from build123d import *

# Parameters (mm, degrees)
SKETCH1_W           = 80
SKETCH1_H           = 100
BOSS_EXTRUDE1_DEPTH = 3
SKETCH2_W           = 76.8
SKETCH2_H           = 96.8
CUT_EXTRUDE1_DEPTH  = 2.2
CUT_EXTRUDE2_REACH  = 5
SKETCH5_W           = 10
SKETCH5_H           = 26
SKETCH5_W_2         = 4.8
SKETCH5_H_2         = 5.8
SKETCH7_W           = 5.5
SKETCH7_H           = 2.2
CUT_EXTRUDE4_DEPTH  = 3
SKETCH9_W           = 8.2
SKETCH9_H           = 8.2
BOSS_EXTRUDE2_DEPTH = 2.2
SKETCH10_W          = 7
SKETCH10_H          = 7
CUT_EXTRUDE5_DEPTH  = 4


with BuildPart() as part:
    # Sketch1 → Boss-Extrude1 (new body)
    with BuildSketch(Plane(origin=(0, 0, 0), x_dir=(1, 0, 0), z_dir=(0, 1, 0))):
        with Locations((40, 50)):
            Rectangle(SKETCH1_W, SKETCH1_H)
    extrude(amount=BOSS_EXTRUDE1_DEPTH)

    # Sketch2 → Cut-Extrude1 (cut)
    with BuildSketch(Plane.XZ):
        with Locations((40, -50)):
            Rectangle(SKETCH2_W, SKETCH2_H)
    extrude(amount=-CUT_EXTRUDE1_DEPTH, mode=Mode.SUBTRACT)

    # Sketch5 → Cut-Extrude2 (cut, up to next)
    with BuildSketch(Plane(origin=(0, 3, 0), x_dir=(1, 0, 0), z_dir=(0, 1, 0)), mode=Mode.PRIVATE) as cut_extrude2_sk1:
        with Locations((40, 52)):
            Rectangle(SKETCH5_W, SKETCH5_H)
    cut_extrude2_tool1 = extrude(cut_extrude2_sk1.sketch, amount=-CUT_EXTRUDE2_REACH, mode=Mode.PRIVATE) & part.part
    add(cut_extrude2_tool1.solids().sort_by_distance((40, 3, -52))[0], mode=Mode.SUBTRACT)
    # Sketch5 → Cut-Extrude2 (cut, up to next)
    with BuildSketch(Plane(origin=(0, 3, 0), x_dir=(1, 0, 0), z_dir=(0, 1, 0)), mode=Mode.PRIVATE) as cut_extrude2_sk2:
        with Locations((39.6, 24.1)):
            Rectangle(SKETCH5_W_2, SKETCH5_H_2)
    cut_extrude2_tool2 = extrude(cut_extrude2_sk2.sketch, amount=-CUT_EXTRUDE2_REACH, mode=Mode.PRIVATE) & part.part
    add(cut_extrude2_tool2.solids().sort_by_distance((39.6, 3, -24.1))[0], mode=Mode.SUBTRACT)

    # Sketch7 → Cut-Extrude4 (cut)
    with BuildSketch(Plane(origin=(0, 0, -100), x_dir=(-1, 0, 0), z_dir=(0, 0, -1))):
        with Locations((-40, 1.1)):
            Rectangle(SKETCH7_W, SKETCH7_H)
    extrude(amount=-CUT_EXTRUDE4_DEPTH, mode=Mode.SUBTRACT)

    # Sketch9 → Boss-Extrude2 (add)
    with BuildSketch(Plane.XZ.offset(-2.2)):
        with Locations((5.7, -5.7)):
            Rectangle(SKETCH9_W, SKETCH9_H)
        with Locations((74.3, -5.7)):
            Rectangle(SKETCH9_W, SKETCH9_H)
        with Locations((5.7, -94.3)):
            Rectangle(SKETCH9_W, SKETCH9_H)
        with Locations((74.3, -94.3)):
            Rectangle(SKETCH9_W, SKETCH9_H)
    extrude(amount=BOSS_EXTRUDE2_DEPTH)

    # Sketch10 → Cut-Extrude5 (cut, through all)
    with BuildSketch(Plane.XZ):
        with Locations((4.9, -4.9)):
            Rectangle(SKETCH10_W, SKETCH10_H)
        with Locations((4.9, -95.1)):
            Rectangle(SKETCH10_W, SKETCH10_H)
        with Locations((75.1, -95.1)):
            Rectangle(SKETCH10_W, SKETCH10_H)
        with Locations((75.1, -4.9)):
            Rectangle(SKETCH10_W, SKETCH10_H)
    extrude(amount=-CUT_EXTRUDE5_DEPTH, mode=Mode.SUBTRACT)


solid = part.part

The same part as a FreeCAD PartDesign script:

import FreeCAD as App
import Part
import Sketcher

doc = App.newDocument("Part")
params = doc.addObject("Spreadsheet::Sheet", "Params")
for row, (alias, value) in enumerate([
    ("sketch1_width", "80 mm"),
    ("sketch1_height", "100 mm"),
    ("pad1_length", "3 mm"),
    ("sketch2_width", "76.8 mm"),
    ("sketch2_height", "96.8 mm"),
    ("pocket1_length", "2.2 mm"),
    ("sketch3_width", "10 mm"),
    ("sketch3_height", "26 mm"),
    ("sketch4_width", "4.8 mm"),
    ("sketch4_height", "5.8 mm"),
    ("sketch5_width", "5.5 mm"),
    ("sketch5_height", "2.2 mm"),
    ("pocket4_length", "3 mm"),
    ("sketch6_width", "8.2 mm"),
    ("pad2_length", "2.2 mm"),
    ("sketch7_width", "7 mm"),
], start=1):
    params.set(f"A{row}", alias)
    params.set(f"B{row}", "=" + value)
    params.setAlias(f"B{row}", alias)

body = doc.addObject("PartDesign::Body", "Body")

# Sketch on XZ plane
sketch1 = body.newObject("Sketcher::SketchObject", "Sketch")
sketch1.AttachmentSupport = (doc.getObject("XZ_Plane"), [""])
sketch1.MapMode = "FlatFace"
sketch1.addGeometry(Part.LineSegment(App.Vector(0, -100, 0), App.Vector(0, 0, 0)), False)
sketch1.addGeometry(Part.LineSegment(App.Vector(0, 0, 0), App.Vector(80, 0, 0)), False)
sketch1.addGeometry(Part.LineSegment(App.Vector(80, 0, 0), App.Vector(80, -100, 0)), False)
sketch1.addGeometry(Part.LineSegment(App.Vector(80, -100, 0), App.Vector(0, -100, 0)), False)
sketch1.addConstraint(Sketcher.Constraint("Coincident", 0, 2, 1, 1))
sketch1.addConstraint(Sketcher.Constraint("Coincident", 1, 2, 2, 1))
sketch1.addConstraint(Sketcher.Constraint("Coincident", 2, 2, 3, 1))
sketch1.addConstraint(Sketcher.Constraint("Coincident", 3, 2, 0, 1))
sketch1.addConstraint(Sketcher.Constraint("Vertical", 0))
sketch1.addConstraint(Sketcher.Constraint("Horizontal", 1))
sketch1.addConstraint(Sketcher.Constraint("Vertical", 2))
sketch1.addConstraint(Sketcher.Constraint("Horizontal", 3))
sketch1.addConstraint(Sketcher.Constraint("Coincident", 0, 2, -1, 1))
sketch1.addConstraint(Sketcher.Constraint("DistanceX", 1, 1, 1, 2, 80.0))
sketch1.addConstraint(Sketcher.Constraint("DistanceY", 0, 1, 0, 2, 100.0))
sketch1.setExpression("Constraints[9]", "Params.sketch1_width")
sketch1.setExpression("Constraints[10]", "Params.sketch1_height")
pad1 = body.newObject("PartDesign::Pad", "Pad")
pad1.Profile = sketch1
pad1.setExpression("Length", "Params.pad1_length")
pad1.Reversed = True

# Sketch on XZ plane
sketch2 = body.newObject("Sketcher::SketchObject", "Sketch001")
sketch2.AttachmentSupport = (doc.getObject("XZ_Plane"), [""])
sketch2.MapMode = "FlatFace"
sketch2.addGeometry(Part.LineSegment(App.Vector(1.6, -1.6, 0), App.Vector(1.6, -98.4, 0)), False)
sketch2.addGeometry(Part.LineSegment(App.Vector(1.6, -98.4, 0), App.Vector(78.4, -98.4, 0)), False)
sketch2.addGeometry(Part.LineSegment(App.Vector(78.4, -98.4, 0), App.Vector(78.4, -1.6, 0)), False)
sketch2.addGeometry(Part.LineSegment(App.Vector(78.4, -1.6, 0), App.Vector(1.6, -1.6, 0)), False)
sketch2.addConstraint(Sketcher.Constraint("Coincident", 0, 2, 1, 1))
sketch2.addConstraint(Sketcher.Constraint("Coincident", 1, 2, 2, 1))
sketch2.addConstraint(Sketcher.Constraint("Coincident", 2, 2, 3, 1))
sketch2.addConstraint(Sketcher.Constraint("Coincident", 3, 2, 0, 1))
sketch2.addConstraint(Sketcher.Constraint("Vertical", 0))
sketch2.addConstraint(Sketcher.Constraint("Horizontal", 1))
sketch2.addConstraint(Sketcher.Constraint("Vertical", 2))
sketch2.addConstraint(Sketcher.Constraint("Horizontal", 3))
sketch2.addConstraint(Sketcher.Constraint("DistanceX", 1, 1, 1, 2, 76.8))
sketch2.addConstraint(Sketcher.Constraint("DistanceY", 0, 2, 0, 1, 96.8))
sketch2.addConstraint(Sketcher.Constraint("DistanceX", -1, 1, 0, 2, 1.6))
sketch2.addConstraint(Sketcher.Constraint("DistanceY", 0, 2, -1, 1, 98.4))
sketch2.setExpression("Constraints[8]", "Params.sketch2_width")
sketch2.setExpression("Constraints[9]", "Params.sketch2_height")
pocket1 = body.newObject("PartDesign::Pocket", "Pocket")
pocket1.Profile = sketch2
pocket1.setExpression("Length", "Params.pocket1_length")

# Sketch on XZ plane
sketch3 = body.newObject("Sketcher::SketchObject", "Sketch002")
sketch3.AttachmentSupport = (doc.getObject("XZ_Plane"), [""])
sketch3.MapMode = "FlatFace"
sketch3.AttachmentOffset = App.Placement(App.Vector(0, 0, -3), App.Rotation())
sketch3.addGeometry(Part.LineSegment(App.Vector(35, -65, 0), App.Vector(35, -39, 0)), False)
sketch3.addGeometry(Part.LineSegment(App.Vector(35, -39, 0), App.Vector(45, -39, 0)), False)
sketch3.addGeometry(Part.LineSegment(App.Vector(45, -39, 0), App.Vector(45, -65, 0)), False)
sketch3.addGeometry(Part.LineSegment(App.Vector(45, -65, 0), App.Vector(35, -65, 0)), False)
sketch3.addConstraint(Sketcher.Constraint("Coincident", 0, 2, 1, 1))
sketch3.addConstraint(Sketcher.Constraint("Coincident", 1, 2, 2, 1))
sketch3.addConstraint(Sketcher.Constraint("Coincident", 2, 2, 3, 1))
sketch3.addConstraint(Sketcher.Constraint("Coincident", 3, 2, 0, 1))
sketch3.addConstraint(Sketcher.Constraint("Vertical", 0))
sketch3.addConstraint(Sketcher.Constraint("Horizontal", 1))
sketch3.addConstraint(Sketcher.Constraint("Vertical", 2))
sketch3.addConstraint(Sketcher.Constraint("Horizontal", 3))
sketch3.addConstraint(Sketcher.Constraint("DistanceX", 1, 1, 1, 2, 10.0))
sketch3.addConstraint(Sketcher.Constraint("DistanceY", 0, 1, 0, 2, 26.0))
sketch3.addConstraint(Sketcher.Constraint("DistanceX", -1, 1, 0, 2, 35.0))
sketch3.addConstraint(Sketcher.Constraint("DistanceY", 0, 2, -1, 1, 39.0))
sketch3.setExpression("Constraints[8]", "Params.sketch3_width")
sketch3.setExpression("Constraints[9]", "Params.sketch3_height")
pocket2 = body.newObject("PartDesign::Pocket", "Pocket001")
pocket2.Profile = sketch3
pocket2.Type = "UpToFirst"
pocket2.Reversed = True

# Sketch on XZ plane
sketch4 = body.newObject("Sketcher::SketchObject", "Sketch003")
sketch4.AttachmentSupport = (doc.getObject("XZ_Plane"), [""])
sketch4.MapMode = "FlatFace"
sketch4.AttachmentOffset = App.Placement(App.Vector(0, 0, -3), App.Rotation())
sketch4.addGeometry(Part.LineSegment(App.Vector(37.2, -27, 0), App.Vector(37.2, -21.2, 0)), False)
sketch4.addGeometry(Part.LineSegment(App.Vector(37.2, -21.2, 0), App.Vector(42, -21.2, 0)), False)
sketch4.addGeometry(Part.LineSegment(App.Vector(42, -21.2, 0), App.Vector(42, -27, 0)), False)
sketch4.addGeometry(Part.LineSegment(App.Vector(42, -27, 0), App.Vector(37.2, -27, 0)), False)
sketch4.addConstraint(Sketcher.Constraint("Coincident", 0, 2, 1, 1))
sketch4.addConstraint(Sketcher.Constraint("Coincident", 1, 2, 2, 1))
sketch4.addConstraint(Sketcher.Constraint("Coincident", 2, 2, 3, 1))
sketch4.addConstraint(Sketcher.Constraint("Coincident", 3, 2, 0, 1))
sketch4.addConstraint(Sketcher.Constraint("Vertical", 0))
sketch4.addConstraint(Sketcher.Constraint("Horizontal", 1))
sketch4.addConstraint(Sketcher.Constraint("Vertical", 2))
sketch4.addConstraint(Sketcher.Constraint("Horizontal", 3))
sketch4.addConstraint(Sketcher.Constraint("DistanceX", 1, 1, 1, 2, 4.8))
sketch4.addConstraint(Sketcher.Constraint("DistanceY", 0, 1, 0, 2, 5.8))
sketch4.addConstraint(Sketcher.Constraint("DistanceX", -1, 1, 1, 2, 42.0))
sketch4.addConstraint(Sketcher.Constraint("DistanceY", 2, 2, -1, 1, 27.0))
sketch4.setExpression("Constraints[8]", "Params.sketch4_width")
sketch4.setExpression("Constraints[9]", "Params.sketch4_height")
pocket3 = body.newObject("PartDesign::Pocket", "Pocket002")
pocket3.Profile = sketch4
pocket3.Type = "UpToFirst"
pocket3.Reversed = True

# Sketch on XY plane
sketch5 = body.newObject("Sketcher::SketchObject", "Sketch004")
sketch5.AttachmentSupport = (doc.getObject("XY_Plane"), [""])
sketch5.MapMode = "FlatFace"
sketch5.AttachmentOffset = App.Placement(App.Vector(0, 0, -100), App.Rotation())
sketch5.addGeometry(Part.LineSegment(App.Vector(42.75, 2.2, 0), App.Vector(42.75, 0, 0)), False)
sketch5.addGeometry(Part.LineSegment(App.Vector(42.75, 0, 0), App.Vector(37.25, 0, 0)), False)
sketch5.addGeometry(Part.LineSegment(App.Vector(37.25, 0, 0), App.Vector(37.25, 2.2, 0)), False)
sketch5.addGeometry(Part.LineSegment(App.Vector(37.25, 2.2, 0), App.Vector(42.75, 2.2, 0)), False)
sketch5.addConstraint(Sketcher.Constraint("Coincident", 0, 2, 1, 1))
sketch5.addConstraint(Sketcher.Constraint("Coincident", 1, 2, 2, 1))
sketch5.addConstraint(Sketcher.Constraint("Coincident", 2, 2, 3, 1))
sketch5.addConstraint(Sketcher.Constraint("Coincident", 3, 2, 0, 1))
sketch5.addConstraint(Sketcher.Constraint("Vertical", 0))
sketch5.addConstraint(Sketcher.Constraint("Horizontal", 1))
sketch5.addConstraint(Sketcher.Constraint("Vertical", 2))
sketch5.addConstraint(Sketcher.Constraint("Horizontal", 3))
sketch5.addConstraint(Sketcher.Constraint("PointOnObject", 0, 2, -1))
sketch5.addConstraint(Sketcher.Constraint("DistanceX", 1, 2, 1, 1, 5.5))
sketch5.addConstraint(Sketcher.Constraint("DistanceY", 0, 2, 0, 1, 2.2))
sketch5.addConstraint(Sketcher.Constraint("DistanceX", -1, 1, 0, 2, 42.75))
sketch5.setExpression("Constraints[9]", "Params.sketch5_width")
sketch5.setExpression("Constraints[10]", "Params.sketch5_height")
pocket4 = body.newObject("PartDesign::Pocket", "Pocket003")
pocket4.Profile = sketch5
pocket4.setExpression("Length", "Params.pocket4_length")
pocket4.Reversed = True

# Sketch on XZ plane
sketch6 = body.newObject("Sketcher::SketchObject", "Sketch005")
sketch6.AttachmentSupport = (doc.getObject("XZ_Plane"), [""])
sketch6.MapMode = "FlatFace"
sketch6.AttachmentOffset = App.Placement(App.Vector(0, 0, -2.2), App.Rotation())
sketch6.addGeometry(Part.LineSegment(App.Vector(1.6, -1.6, 0), App.Vector(1.6, -9.8, 0)), False)
sketch6.addGeometry(Part.LineSegment(App.Vector(1.6, -9.8, 0), App.Vector(9.8, -9.8, 0)), False)
sketch6.addGeometry(Part.LineSegment(App.Vector(9.8, -9.8, 0), App.Vector(9.8, -1.6, 0)), False)
sketch6.addGeometry(Part.LineSegment(App.Vector(9.8, -1.6, 0), App.Vector(1.6, -1.6, 0)), False)
sketch6.addGeometry(Part.LineSegment(App.Vector(70.2, -1.6, 0), App.Vector(70.2, -9.8, 0)), False)
sketch6.addGeometry(Part.LineSegment(App.Vector(70.2, -9.8, 0), App.Vector(78.4, -9.8, 0)), False)
sketch6.addGeometry(Part.LineSegment(App.Vector(78.4, -9.8, 0), App.Vector(78.4, -1.6, 0)), False)
sketch6.addGeometry(Part.LineSegment(App.Vector(78.4, -1.6, 0), App.Vector(70.2, -1.6, 0)), False)
sketch6.addGeometry(Part.LineSegment(App.Vector(1.6, -90.2, 0), App.Vector(1.6, -98.4, 0)), False)
sketch6.addGeometry(Part.LineSegment(App.Vector(1.6, -98.4, 0), App.Vector(9.8, -98.4, 0)), False)
sketch6.addGeometry(Part.LineSegment(App.Vector(9.8, -98.4, 0), App.Vector(9.8, -90.2, 0)), False)
sketch6.addGeometry(Part.LineSegment(App.Vector(9.8, -90.2, 0), App.Vector(1.6, -90.2, 0)), False)
sketch6.addGeometry(Part.LineSegment(App.Vector(70.2, -90.2, 0), App.Vector(70.2, -98.4, 0)), False)
sketch6.addGeometry(Part.LineSegment(App.Vector(70.2, -98.4, 0), App.Vector(78.4, -98.4, 0)), False)
sketch6.addGeometry(Part.LineSegment(App.Vector(78.4, -98.4, 0), App.Vector(78.4, -90.2, 0)), False)
sketch6.addGeometry(Part.LineSegment(App.Vector(78.4, -90.2, 0), App.Vector(70.2, -90.2, 0)), False)
sketch6.addConstraint(Sketcher.Constraint("Coincident", 0, 2, 1, 1))
sketch6.addConstraint(Sketcher.Constraint("Coincident", 1, 2, 2, 1))
sketch6.addConstraint(Sketcher.Constraint("Coincident", 2, 2, 3, 1))
sketch6.addConstraint(Sketcher.Constraint("Coincident", 3, 2, 0, 1))
sketch6.addConstraint(Sketcher.Constraint("Coincident", 4, 2, 5, 1))
sketch6.addConstraint(Sketcher.Constraint("Coincident", 5, 2, 6, 1))
sketch6.addConstraint(Sketcher.Constraint("Coincident", 6, 2, 7, 1))
sketch6.addConstraint(Sketcher.Constraint("Coincident", 7, 2, 4, 1))
sketch6.addConstraint(Sketcher.Constraint("Coincident", 8, 2, 9, 1))
sketch6.addConstraint(Sketcher.Constraint("Coincident", 9, 2, 10, 1))
sketch6.addConstraint(Sketcher.Constraint("Coincident", 10, 2, 11, 1))
sketch6.addConstraint(Sketcher.Constraint("Coincident", 11, 2, 8, 1))
sketch6.addConstraint(Sketcher.Constraint("Coincident", 12, 2, 13, 1))
sketch6.addConstraint(Sketcher.Constraint("Coincident", 13, 2, 14, 1))
sketch6.addConstraint(Sketcher.Constraint("Coincident", 14, 2, 15, 1))
sketch6.addConstraint(Sketcher.Constraint("Coincident", 15, 2, 12, 1))
sketch6.addConstraint(Sketcher.Constraint("Vertical", 0))
sketch6.addConstraint(Sketcher.Constraint("Horizontal", 1))
sketch6.addConstraint(Sketcher.Constraint("Vertical", 2))
sketch6.addConstraint(Sketcher.Constraint("Horizontal", 3))
sketch6.addConstraint(Sketcher.Constraint("Vertical", 4))
sketch6.addConstraint(Sketcher.Constraint("Horizontal", 5))
sketch6.addConstraint(Sketcher.Constraint("Vertical", 6))
sketch6.addConstraint(Sketcher.Constraint("Horizontal", 7))
sketch6.addConstraint(Sketcher.Constraint("Vertical", 8))
sketch6.addConstraint(Sketcher.Constraint("Horizontal", 9))
sketch6.addConstraint(Sketcher.Constraint("Vertical", 10))
sketch6.addConstraint(Sketcher.Constraint("Horizontal", 11))
sketch6.addConstraint(Sketcher.Constraint("Vertical", 12))
sketch6.addConstraint(Sketcher.Constraint("Horizontal", 13))
sketch6.addConstraint(Sketcher.Constraint("Vertical", 14))
sketch6.addConstraint(Sketcher.Constraint("Horizontal", 15))
sketch6.addConstraint(Sketcher.Constraint("Horizontal", 1, 2, 4, 2))
sketch6.addConstraint(Sketcher.Constraint("Horizontal", 3, 2, 6, 2))
sketch6.addConstraint(Sketcher.Constraint("Horizontal", 9, 2, 12, 2))
sketch6.addConstraint(Sketcher.Constraint("Horizontal", 11, 2, 14, 2))
sketch6.addConstraint(Sketcher.Constraint("Vertical", 3, 2, 8, 2))
sketch6.addConstraint(Sketcher.Constraint("Vertical", 2, 2, 9, 2))
sketch6.addConstraint(Sketcher.Constraint("Vertical", 7, 2, 12, 2))
sketch6.addConstraint(Sketcher.Constraint("Vertical", 6, 2, 13, 2))
sketch6.addConstraint(Sketcher.Constraint("Equal", 3, 5))
sketch6.addConstraint(Sketcher.Constraint("Equal", 15, 0))
sketch6.addConstraint(Sketcher.Constraint("Equal", 6, 8))
sketch6.addConstraint(Sketcher.Constraint("DistanceX", 1, 1, 1, 2, 8.2))
sketch6.addConstraint(Sketcher.Constraint("DistanceX", -1, 1, 0, 2, 1.6))
sketch6.addConstraint(Sketcher.Constraint("DistanceY", 0, 2, -1, 1, 9.8))
sketch6.addConstraint(Sketcher.Constraint("DistanceX", -1, 1, 4, 2, 70.2))
sketch6.addConstraint(Sketcher.Constraint("DistanceY", 8, 2, -1, 1, 98.4))
sketch6.setExpression("Constraints[43]", "Params.sketch6_width")
pad2 = body.newObject("PartDesign::Pad", "Pad001")
pad2.Profile = sketch6
pad2.setExpression("Length", "Params.pad2_length")

# Sketch on XZ plane
sketch7 = body.newObject("Sketcher::SketchObject", "Sketch006")
sketch7.AttachmentSupport = (doc.getObject("XZ_Plane"), [""])
sketch7.MapMode = "FlatFace"
sketch7.addGeometry(Part.LineSegment(App.Vector(1.4, -1.4, 0), App.Vector(1.4, -8.4, 0)), False)
sketch7.addGeometry(Part.LineSegment(App.Vector(1.4, -8.4, 0), App.Vector(8.4, -8.4, 0)), False)
sketch7.addGeometry(Part.LineSegment(App.Vector(8.4, -8.4, 0), App.Vector(8.4, -1.4, 0)), False)
sketch7.addGeometry(Part.LineSegment(App.Vector(8.4, -1.4, 0), App.Vector(1.4, -1.4, 0)), False)
sketch7.addGeometry(Part.LineSegment(App.Vector(1.4, -91.6, 0), App.Vector(1.4, -98.6, 0)), False)
sketch7.addGeometry(Part.LineSegment(App.Vector(1.4, -98.6, 0), App.Vector(8.4, -98.6, 0)), False)
sketch7.addGeometry(Part.LineSegment(App.Vector(8.4, -98.6, 0), App.Vector(8.4, -91.6, 0)), False)
sketch7.addGeometry(Part.LineSegment(App.Vector(8.4, -91.6, 0), App.Vector(1.4, -91.6, 0)), False)
sketch7.addGeometry(Part.LineSegment(App.Vector(71.6, -91.6, 0), App.Vector(71.6, -98.6, 0)), False)
sketch7.addGeometry(Part.LineSegment(App.Vector(71.6, -98.6, 0), App.Vector(78.6, -98.6, 0)), False)
sketch7.addGeometry(Part.LineSegment(App.Vector(78.6, -98.6, 0), App.Vector(78.6, -91.6, 0)), False)
sketch7.addGeometry(Part.LineSegment(App.Vector(78.6, -91.6, 0), App.Vector(71.6, -91.6, 0)), False)
sketch7.addGeometry(Part.LineSegment(App.Vector(71.6, -1.4, 0), App.Vector(71.6, -8.4, 0)), False)
sketch7.addGeometry(Part.LineSegment(App.Vector(71.6, -8.4, 0), App.Vector(78.6, -8.4, 0)), False)
sketch7.addGeometry(Part.LineSegment(App.Vector(78.6, -8.4, 0), App.Vector(78.6, -1.4, 0)), False)
sketch7.addGeometry(Part.LineSegment(App.Vector(78.6, -1.4, 0), App.Vector(71.6, -1.4, 0)), False)
sketch7.addConstraint(Sketcher.Constraint("Coincident", 0, 2, 1, 1))
sketch7.addConstraint(Sketcher.Constraint("Coincident", 1, 2, 2, 1))
sketch7.addConstraint(Sketcher.Constraint("Coincident", 2, 2, 3, 1))
sketch7.addConstraint(Sketcher.Constraint("Coincident", 3, 2, 0, 1))
sketch7.addConstraint(Sketcher.Constraint("Coincident", 4, 2, 5, 1))
sketch7.addConstraint(Sketcher.Constraint("Coincident", 5, 2, 6, 1))
sketch7.addConstraint(Sketcher.Constraint("Coincident", 6, 2, 7, 1))
sketch7.addConstraint(Sketcher.Constraint("Coincident", 7, 2, 4, 1))
sketch7.addConstraint(Sketcher.Constraint("Coincident", 8, 2, 9, 1))
sketch7.addConstraint(Sketcher.Constraint("Coincident", 9, 2, 10, 1))
sketch7.addConstraint(Sketcher.Constraint("Coincident", 10, 2, 11, 1))
sketch7.addConstraint(Sketcher.Constraint("Coincident", 11, 2, 8, 1))
sketch7.addConstraint(Sketcher.Constraint("Coincident", 12, 2, 13, 1))
sketch7.addConstraint(Sketcher.Constraint("Coincident", 13, 2, 14, 1))
sketch7.addConstraint(Sketcher.Constraint("Coincident", 14, 2, 15, 1))
sketch7.addConstraint(Sketcher.Constraint("Coincident", 15, 2, 12, 1))
sketch7.addConstraint(Sketcher.Constraint("Vertical", 0))
sketch7.addConstraint(Sketcher.Constraint("Horizontal", 1))
sketch7.addConstraint(Sketcher.Constraint("Vertical", 2))
sketch7.addConstraint(Sketcher.Constraint("Horizontal", 3))
sketch7.addConstraint(Sketcher.Constraint("Vertical", 4))
sketch7.addConstraint(Sketcher.Constraint("Horizontal", 5))
sketch7.addConstraint(Sketcher.Constraint("Vertical", 6))
sketch7.addConstraint(Sketcher.Constraint("Horizontal", 7))
sketch7.addConstraint(Sketcher.Constraint("Vertical", 8))
sketch7.addConstraint(Sketcher.Constraint("Horizontal", 9))
sketch7.addConstraint(Sketcher.Constraint("Vertical", 10))
sketch7.addConstraint(Sketcher.Constraint("Horizontal", 11))
sketch7.addConstraint(Sketcher.Constraint("Vertical", 12))
sketch7.addConstraint(Sketcher.Constraint("Horizontal", 13))
sketch7.addConstraint(Sketcher.Constraint("Vertical", 14))
sketch7.addConstraint(Sketcher.Constraint("Horizontal", 15))
sketch7.addConstraint(Sketcher.Constraint("Horizontal", 5, 2, 8, 2))
sketch7.addConstraint(Sketcher.Constraint("Horizontal", 7, 2, 10, 2))
sketch7.addConstraint(Sketcher.Constraint("Horizontal", 1, 2, 12, 2))
sketch7.addConstraint(Sketcher.Constraint("Horizontal", 3, 2, 14, 2))
sketch7.addConstraint(Sketcher.Constraint("Vertical", 3, 2, 4, 2))
sketch7.addConstraint(Sketcher.Constraint("Vertical", 2, 2, 5, 2))
sketch7.addConstraint(Sketcher.Constraint("Vertical", 11, 2, 12, 2))
sketch7.addConstraint(Sketcher.Constraint("Vertical", 10, 2, 13, 2))
sketch7.addConstraint(Sketcher.Constraint("Equal", 7, 9))
sketch7.addConstraint(Sketcher.Constraint("Equal", 15, 0))
sketch7.addConstraint(Sketcher.Constraint("Equal", 2, 4))
sketch7.addConstraint(Sketcher.Constraint("DistanceX", 1, 1, 1, 2, 7.0))
sketch7.addConstraint(Sketcher.Constraint("DistanceX", -1, 1, 0, 2, 1.4))
sketch7.addConstraint(Sketcher.Constraint("DistanceY", 0, 2, -1, 1, 8.4))
sketch7.addConstraint(Sketcher.Constraint("DistanceY", 4, 2, -1, 1, 98.6))
sketch7.addConstraint(Sketcher.Constraint("DistanceX", -1, 1, 8, 2, 71.6))
sketch7.setExpression("Constraints[43]", "Params.sketch7_width")
pocket5 = body.newObject("PartDesign::Pocket", "Pocket004")
pocket5.Profile = sketch7
pocket5.Type = "ThroughAll"

doc.recompute()
